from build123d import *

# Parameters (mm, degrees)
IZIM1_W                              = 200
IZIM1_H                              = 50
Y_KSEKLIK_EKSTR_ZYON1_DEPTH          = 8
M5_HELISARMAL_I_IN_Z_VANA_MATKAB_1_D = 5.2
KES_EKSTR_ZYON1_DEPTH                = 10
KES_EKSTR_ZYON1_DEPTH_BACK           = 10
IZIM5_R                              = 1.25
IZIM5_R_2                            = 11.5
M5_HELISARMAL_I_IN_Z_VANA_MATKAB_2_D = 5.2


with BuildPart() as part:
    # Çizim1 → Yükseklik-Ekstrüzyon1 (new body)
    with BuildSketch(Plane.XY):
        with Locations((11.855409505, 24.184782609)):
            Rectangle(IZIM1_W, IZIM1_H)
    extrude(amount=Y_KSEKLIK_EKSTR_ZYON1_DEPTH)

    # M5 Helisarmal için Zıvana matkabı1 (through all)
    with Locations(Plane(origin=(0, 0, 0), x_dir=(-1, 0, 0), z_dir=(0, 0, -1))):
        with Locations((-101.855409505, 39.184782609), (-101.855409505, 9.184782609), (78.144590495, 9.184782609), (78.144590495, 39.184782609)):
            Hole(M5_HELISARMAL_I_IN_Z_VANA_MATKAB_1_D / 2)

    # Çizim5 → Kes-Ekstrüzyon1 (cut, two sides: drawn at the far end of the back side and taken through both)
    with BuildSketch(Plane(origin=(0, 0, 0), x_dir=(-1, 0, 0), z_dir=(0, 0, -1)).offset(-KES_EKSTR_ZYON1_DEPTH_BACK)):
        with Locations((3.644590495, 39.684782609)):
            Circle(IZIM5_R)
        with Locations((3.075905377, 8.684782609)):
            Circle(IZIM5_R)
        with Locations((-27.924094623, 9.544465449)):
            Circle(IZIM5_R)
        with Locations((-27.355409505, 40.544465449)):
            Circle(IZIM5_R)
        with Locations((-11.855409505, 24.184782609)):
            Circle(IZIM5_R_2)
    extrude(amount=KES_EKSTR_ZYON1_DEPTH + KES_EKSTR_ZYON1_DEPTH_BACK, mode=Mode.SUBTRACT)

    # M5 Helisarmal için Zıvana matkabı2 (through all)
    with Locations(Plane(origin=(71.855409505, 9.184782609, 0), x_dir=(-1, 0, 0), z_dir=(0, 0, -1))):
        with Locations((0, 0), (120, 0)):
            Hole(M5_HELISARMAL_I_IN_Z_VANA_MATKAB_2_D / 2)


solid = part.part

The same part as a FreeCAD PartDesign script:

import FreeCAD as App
import Part
import Sketcher

doc = App.newDocument("Part")
params = doc.addObject("Spreadsheet::Sheet", "Params")
for row, (alias, value) in enumerate([
    ("sketch1_width", "200 mm"),
    ("sketch1_height", "50 mm"),
    ("pad1_length", "8 mm"),
    ("sketch2_diameter", "5.2 mm"),
    ("hole_diameter", "5.2 mm"),
    ("sketch3_diameter", "23 mm"),
    ("sketch3_diameter2", "2.5 mm"),
    ("sketch4_diameter", "5.2 mm"),
    ("hole2_diameter", "5.2 mm"),
], start=1):
    params.set(f"A{row}", alias)
    params.set(f"B{row}", "=" + value)
    params.setAlias(f"B{row}", alias)

body = doc.addObject("PartDesign::Body", "Body")

sketch1 = body.newObject("Sketcher::SketchObject", "Sketch")
sketch1.AttachmentSupport = (doc.getObject("XY_Plane"), [""])
sketch1.MapMode = "FlatFace"
sketch1.addGeometry([
    Part.LineSegment(App.Vector(-88, 49, 0), App.Vector(-88, -1, 0)),
    Part.LineSegment(App.Vector(-88, -1, 0), App.Vector(112, -1, 0)),
    Part.LineSegment(App.Vector(112, -1, 0), App.Vector(112, 49, 0)),
    Part.LineSegment(App.Vector(112, 49, 0), App.Vector(-88, 49, 0)),
], False)
sketch1.addConstraint([
    Sketcher.Constraint("Coincident", 0, 2, 1, 1),
    Sketcher.Constraint("Coincident", 1, 2, 2, 1),
    Sketcher.Constraint("Coincident", 2, 2, 3, 1),
    Sketcher.Constraint("Coincident", 3, 2, 0, 1),
    Sketcher.Constraint("Vertical", 0),
    Sketcher.Constraint("Horizontal", 1),
    Sketcher.Constraint("Vertical", 2),
    Sketcher.Constraint("Horizontal", 3),
    Sketcher.Constraint("DistanceX", 1, 1, 1, 2, 200.0),
    Sketcher.Constraint("DistanceY", 0, 2, 0, 1, 50.0),
    Sketcher.Constraint("DistanceX", 0, 2, -1, 1, 88.14459),
    Sketcher.Constraint("DistanceY", 0, 2, -1, 1, 0.815217),
])
sketch1.setExpression("Constraints[8]", "Params.sketch1_width")
sketch1.setExpression("Constraints[9]", "Params.sketch1_height")
pad1 = body.newObject("PartDesign::Pad", "Pad")
pad1.Profile = sketch1
pad1.setExpression("Length", "Params.pad1_length")

sketch2 = body.newObject("Sketcher::SketchObject", "Sketch001")
sketch2.AttachmentSupport = (doc.getObject("XY_Plane"), [""])
sketch2.MapMode = "FlatFace"
sketch2.addGeometry([
    Part.Circle(App.Vector(101.9, 39.2, 0), App.Vector(0, 0, 1), 2.6),
    Part.Circle(App.Vector(101.9, 9.2, 0), App.Vector(0, 0, 1), 2.6),
    Part.Circle(App.Vector(-78.1, 9.2, 0), App.Vector(0, 0, 1), 2.6),
    Part.Circle(App.Vector(-78.1, 39.2, 0), App.Vector(0, 0, 1), 2.6),
], False)
sketch2.addConstraint([
    Sketcher.Constraint("Equal", 0, 1),
    Sketcher.Constraint("Equal", 1, 2),
    Sketcher.Constraint("Equal", 2, 3),
    Sketcher.Constraint("Horizontal", 1, 3, 2, 3),
    Sketcher.Constraint("Horizontal", 0, 3, 3, 3),
    Sketcher.Constraint("Vertical", 0, 3, 1, 3),
    Sketcher.Constraint("Vertical", 2, 3, 3, 3),
    Sketcher.Constraint("Diameter", 0, 5.2),
    Sketcher.Constraint("DistanceY", 1, 3, 0, 3, 30.0),
    Sketcher.Constraint("DistanceX", 2, 3, 1, 3, 180.0),
    Sketcher.Constraint("DistanceX", -1, 1, 0, 3, 101.85541),
    Sketcher.Constraint("DistanceY", -1, 1, 0, 3, 39.184783),
])
sketch2.setExpression("Constraints[7]", "Params.sketch2_diameter")
doc.recompute()
hole = body.newObject("PartDesign::Hole", "Hole")
hole.Profile = sketch2
hole.ThreadType = "None"
hole.setExpression("Diameter", "Params.hole_diameter")
hole.DepthType = "ThroughAll"
hole.Reversed = True

sketch3 = body.newObject("Sketcher::SketchObject", "Sketch002")
sketch3.AttachmentSupport = (doc.getObject("XY_Plane"), [""])
sketch3.MapMode = "FlatFace"
sketch3.addGeometry([
    Part.Circle(App.Vector(-3.6, 39.7, 0), App.Vector(0, 0, 1), 1.2),
    Part.Circle(App.Vector(-3.1, 8.7, 0), App.Vector(0, 0, 1), 1.2),
    Part.Circle(App.Vector(27.9, 9.5, 0), App.Vector(0, 0, 1), 1.2),
    Part.Circle(App.Vector(27.4, 40.5, 0), App.Vector(0, 0, 1), 1.2),
    Part.Circle(App.Vector(11.9, 24.2, 0), App.Vector(0, 0, 1), 11.5),
], False)
sketch3.addConstraint([
    Sketcher.Constraint("Equal", 0, 1),
    Sketcher.Constraint("Equal", 1, 2),
    Sketcher.Constraint("Equal", 2, 3),
    Sketcher.Constraint("Diameter", 4, 23.0),
    Sketcher.Constraint("Diameter", 0, 2.5),
    Sketcher.Constraint("DistanceY", 1, 3, 0, 3, 31.0),
    Sketcher.Constraint("DistanceX", 1, 3, 2, 3, 31.0),
    Sketcher.Constraint("DistanceY", 2, 3, 3, 3, 31.0),
    Sketcher.Constraint("DistanceX", 0, 3, 3, 3, 31.0),
    Sketcher.Constraint("DistanceY", 1, 3, 4, 3, 15.5),
    Sketcher.Constraint("DistanceX", 0, 3, 4, 3, 15.5),
    Sketcher.Constraint("DistanceX", 0, 3, -1, 1, 3.64459),
    Sketcher.Constraint("DistanceY", -1, 1, 0, 3, 39.684783),
    Sketcher.Constraint("DistanceX", 1, 3, -1, 1, 3.075905),
    Sketcher.Constraint("DistanceY", -1, 1, 2, 3, 9.544465),
])
sketch3.setExpression("Constraints[3]", "Params.sketch3_diameter")
sketch3.setExpression("Constraints[4]", "Params.sketch3_diameter2")
pocket1 = body.newObject("PartDesign::Pocket", "Pocket")
pocket1.Profile = sketch3
pocket1.Type = "ThroughAll"
pocket1.Midplane = True

sketch4 = body.newObject("Sketcher::SketchObject", "Sketch003")
sketch4.AttachmentSupport = (doc.getObject("XY_Plane"), [""])
sketch4.MapMode = "FlatFace"
sketch4.addGeometry([
    Part.Circle(App.Vector(71.9, 9.2, 0), App.Vector(0, 0, 1), 2.6),
    Part.Circle(App.Vector(-48.1, 9.2, 0), App.Vector(0, 0, 1), 2.6),
], False)
sketch4.addConstraint([
    Sketcher.Constraint("Equal", 0, 1),
    Sketcher.Constraint("Horizontal", 0, 3, 1, 3),
    Sketcher.Constraint("Diameter", 0, 5.2),
    Sketcher.Constraint("DistanceX", 1, 3, 0, 3, 120.0),
    Sketcher.Constraint("DistanceX", -1, 1, 0, 3, 71.85541),
    Sketcher.Constraint("DistanceY", -1, 1, 0, 3, 9.184783),
])
sketch4.setExpression("Constraints[2]", "Params.sketch4_diameter")
doc.recompute()
hole2 = body.newObject("PartDesign::Hole", "Hole001")
hole2.Profile = sketch4
hole2.ThreadType = "None"
hole2.setExpression("Diameter", "Params.hole2_diameter")
hole2.DepthType = "ThroughAll"
hole2.Reversed = True

doc.recompute()
